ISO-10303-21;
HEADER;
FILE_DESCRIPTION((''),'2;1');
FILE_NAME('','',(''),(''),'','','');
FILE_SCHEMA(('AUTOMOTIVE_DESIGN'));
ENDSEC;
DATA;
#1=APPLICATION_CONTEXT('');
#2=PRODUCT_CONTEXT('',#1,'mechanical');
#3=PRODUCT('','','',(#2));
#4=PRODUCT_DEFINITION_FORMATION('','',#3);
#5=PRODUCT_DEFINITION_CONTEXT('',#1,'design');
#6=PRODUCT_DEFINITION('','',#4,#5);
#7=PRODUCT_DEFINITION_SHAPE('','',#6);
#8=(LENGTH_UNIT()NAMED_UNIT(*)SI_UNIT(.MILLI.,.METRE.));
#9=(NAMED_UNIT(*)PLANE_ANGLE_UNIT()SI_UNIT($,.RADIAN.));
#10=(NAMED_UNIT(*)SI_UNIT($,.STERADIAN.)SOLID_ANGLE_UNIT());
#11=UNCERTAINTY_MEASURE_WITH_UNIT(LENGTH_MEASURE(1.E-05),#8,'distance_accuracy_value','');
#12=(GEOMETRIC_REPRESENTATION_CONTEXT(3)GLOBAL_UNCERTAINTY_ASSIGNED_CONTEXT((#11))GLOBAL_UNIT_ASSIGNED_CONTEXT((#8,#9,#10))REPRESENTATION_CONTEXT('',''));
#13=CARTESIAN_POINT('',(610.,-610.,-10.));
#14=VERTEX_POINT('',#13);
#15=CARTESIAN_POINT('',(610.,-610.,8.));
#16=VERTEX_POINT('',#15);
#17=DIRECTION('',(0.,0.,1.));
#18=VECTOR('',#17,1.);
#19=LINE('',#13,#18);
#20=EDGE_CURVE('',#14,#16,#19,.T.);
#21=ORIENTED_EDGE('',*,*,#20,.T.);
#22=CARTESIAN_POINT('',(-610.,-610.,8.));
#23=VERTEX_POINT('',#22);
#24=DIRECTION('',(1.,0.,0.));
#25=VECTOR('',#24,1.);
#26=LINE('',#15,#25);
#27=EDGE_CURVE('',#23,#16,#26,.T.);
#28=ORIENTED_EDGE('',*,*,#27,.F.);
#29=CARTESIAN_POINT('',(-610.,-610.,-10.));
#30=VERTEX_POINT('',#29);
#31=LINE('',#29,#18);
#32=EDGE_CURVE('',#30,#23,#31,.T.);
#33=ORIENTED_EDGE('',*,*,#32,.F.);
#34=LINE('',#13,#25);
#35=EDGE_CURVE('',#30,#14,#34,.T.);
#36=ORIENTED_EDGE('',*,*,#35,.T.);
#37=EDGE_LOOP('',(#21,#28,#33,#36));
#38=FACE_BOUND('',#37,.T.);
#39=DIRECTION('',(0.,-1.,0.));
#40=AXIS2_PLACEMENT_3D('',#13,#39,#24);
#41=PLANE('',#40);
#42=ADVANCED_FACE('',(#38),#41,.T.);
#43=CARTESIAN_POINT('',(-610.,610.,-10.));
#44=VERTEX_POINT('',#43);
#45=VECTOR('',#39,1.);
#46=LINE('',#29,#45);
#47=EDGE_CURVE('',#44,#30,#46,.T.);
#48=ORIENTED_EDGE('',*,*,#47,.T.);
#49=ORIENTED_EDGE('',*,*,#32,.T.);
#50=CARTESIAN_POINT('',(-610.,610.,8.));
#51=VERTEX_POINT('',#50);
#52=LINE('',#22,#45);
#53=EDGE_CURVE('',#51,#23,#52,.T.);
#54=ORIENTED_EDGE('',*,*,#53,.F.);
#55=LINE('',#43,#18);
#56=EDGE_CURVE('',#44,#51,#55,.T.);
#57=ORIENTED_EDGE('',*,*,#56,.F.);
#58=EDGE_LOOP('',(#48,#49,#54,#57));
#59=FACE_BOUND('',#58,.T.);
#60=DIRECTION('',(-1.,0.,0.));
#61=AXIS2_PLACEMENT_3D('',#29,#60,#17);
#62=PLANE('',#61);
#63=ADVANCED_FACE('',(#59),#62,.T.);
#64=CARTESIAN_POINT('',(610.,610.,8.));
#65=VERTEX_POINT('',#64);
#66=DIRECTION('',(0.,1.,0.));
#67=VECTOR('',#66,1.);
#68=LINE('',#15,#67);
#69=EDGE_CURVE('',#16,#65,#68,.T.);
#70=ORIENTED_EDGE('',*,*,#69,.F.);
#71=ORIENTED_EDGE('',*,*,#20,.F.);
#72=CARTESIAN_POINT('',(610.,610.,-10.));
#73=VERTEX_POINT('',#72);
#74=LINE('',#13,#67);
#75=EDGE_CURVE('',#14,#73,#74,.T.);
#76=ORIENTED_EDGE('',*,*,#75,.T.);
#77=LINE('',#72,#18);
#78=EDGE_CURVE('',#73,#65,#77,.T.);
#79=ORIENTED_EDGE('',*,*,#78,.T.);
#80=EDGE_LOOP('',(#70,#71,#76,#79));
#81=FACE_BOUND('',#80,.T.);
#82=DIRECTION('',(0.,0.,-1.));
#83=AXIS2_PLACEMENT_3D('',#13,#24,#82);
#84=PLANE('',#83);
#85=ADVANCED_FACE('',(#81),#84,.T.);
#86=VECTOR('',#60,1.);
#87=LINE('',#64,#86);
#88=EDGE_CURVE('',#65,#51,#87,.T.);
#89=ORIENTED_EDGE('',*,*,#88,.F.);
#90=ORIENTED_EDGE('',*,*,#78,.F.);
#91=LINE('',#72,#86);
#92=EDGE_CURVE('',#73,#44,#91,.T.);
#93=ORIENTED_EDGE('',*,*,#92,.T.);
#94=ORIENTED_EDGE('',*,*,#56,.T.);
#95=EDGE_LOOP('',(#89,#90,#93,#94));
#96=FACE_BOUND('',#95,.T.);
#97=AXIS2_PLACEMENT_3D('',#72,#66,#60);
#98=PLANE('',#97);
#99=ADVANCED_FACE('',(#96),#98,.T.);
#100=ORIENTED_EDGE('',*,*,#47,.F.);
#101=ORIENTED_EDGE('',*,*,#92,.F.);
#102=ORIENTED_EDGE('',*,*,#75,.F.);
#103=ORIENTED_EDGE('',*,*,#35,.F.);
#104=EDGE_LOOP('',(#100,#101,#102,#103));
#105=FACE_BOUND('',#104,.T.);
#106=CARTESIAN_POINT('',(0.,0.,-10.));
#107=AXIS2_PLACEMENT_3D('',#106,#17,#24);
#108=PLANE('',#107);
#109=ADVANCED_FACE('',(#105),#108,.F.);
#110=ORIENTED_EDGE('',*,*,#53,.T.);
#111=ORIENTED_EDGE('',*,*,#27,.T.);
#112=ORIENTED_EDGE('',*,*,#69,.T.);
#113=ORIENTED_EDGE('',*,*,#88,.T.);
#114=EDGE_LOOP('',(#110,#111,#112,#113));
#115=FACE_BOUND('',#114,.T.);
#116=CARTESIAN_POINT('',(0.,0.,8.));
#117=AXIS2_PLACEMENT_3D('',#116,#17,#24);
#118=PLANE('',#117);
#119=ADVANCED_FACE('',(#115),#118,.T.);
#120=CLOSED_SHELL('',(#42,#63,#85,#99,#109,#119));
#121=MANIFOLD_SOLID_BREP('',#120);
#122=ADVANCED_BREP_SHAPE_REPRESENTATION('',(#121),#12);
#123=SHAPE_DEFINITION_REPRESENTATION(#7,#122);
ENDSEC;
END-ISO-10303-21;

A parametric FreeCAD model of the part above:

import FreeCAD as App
import Part
import Sketcher

V = App.Vector
Q = App.Units.Quantity


def add_polygon(sketch, points):
    """Adds a closed chain of lines whose ends are joined by coincident constraints."""
    first, n = sketch.GeometryCount, len(points)
    for a, b in zip(points, points[1:] + points[:1]):
        sketch.addGeometry(Part.LineSegment(App.Vector(*a, 0), App.Vector(*b, 0)), False)
    for i in range(n):
        sketch.addConstraint(Sketcher.Constraint("Coincident", first + i, 2, first + (i + 1) % n, 1))

doc = App.newDocument("Part")
params = doc.addObject("Spreadsheet::Sheet", "Params")
for row, (alias, value) in enumerate([
    ("sketch1_width", "1220 mm"),
    ("pad1_length", "18 mm"),
], start=1):
    params.set(f"A{row}", alias)
    params.set(f"B{row}", "=" + value)
    params.setAlias(f"B{row}", alias)

body = doc.addObject("PartDesign::Body", "Body")

sketch1 = body.newObject("Sketcher::SketchObject", "Sketch")
sketch1.AttachmentSupport = (doc.getObject("XY_Plane"), [""])
sketch1.MapMode = "FlatFace"
sketch1.AttachmentOffset = App.Placement(V(0, 0, 8), App.Rotation())
add_polygon(sketch1, [(-610, 610), (-610, -610), (610, -610), (610, 610)])
sketch1.addConstraint(Sketcher.Constraint("Vertical", 0))
sketch1.addConstraint(Sketcher.Constraint("Horizontal", 1))
sketch1.addConstraint(Sketcher.Constraint("Vertical", 2))
sketch1.addConstraint(Sketcher.Constraint("Horizontal", 3))
sketch1.addConstraint(Sketcher.Constraint("Symmetric", 0, 2, 2, 2, -1, 1))
sketch1.addConstraint(Sketcher.Constraint("Equal", 3, 0))
sketch1.addConstraint(Sketcher.Constraint("DistanceX", 1, 1, 1, 2, Q("1220 mm")))
sketch1.setExpression("Constraints[10]", "Params.sketch1_width")
pad1 = body.newObject("PartDesign::Pad", "Pad")
pad1.Profile = sketch1
pad1.setExpression("Length", "Params.pad1_length")
pad1.Reversed = True

doc.recompute()
